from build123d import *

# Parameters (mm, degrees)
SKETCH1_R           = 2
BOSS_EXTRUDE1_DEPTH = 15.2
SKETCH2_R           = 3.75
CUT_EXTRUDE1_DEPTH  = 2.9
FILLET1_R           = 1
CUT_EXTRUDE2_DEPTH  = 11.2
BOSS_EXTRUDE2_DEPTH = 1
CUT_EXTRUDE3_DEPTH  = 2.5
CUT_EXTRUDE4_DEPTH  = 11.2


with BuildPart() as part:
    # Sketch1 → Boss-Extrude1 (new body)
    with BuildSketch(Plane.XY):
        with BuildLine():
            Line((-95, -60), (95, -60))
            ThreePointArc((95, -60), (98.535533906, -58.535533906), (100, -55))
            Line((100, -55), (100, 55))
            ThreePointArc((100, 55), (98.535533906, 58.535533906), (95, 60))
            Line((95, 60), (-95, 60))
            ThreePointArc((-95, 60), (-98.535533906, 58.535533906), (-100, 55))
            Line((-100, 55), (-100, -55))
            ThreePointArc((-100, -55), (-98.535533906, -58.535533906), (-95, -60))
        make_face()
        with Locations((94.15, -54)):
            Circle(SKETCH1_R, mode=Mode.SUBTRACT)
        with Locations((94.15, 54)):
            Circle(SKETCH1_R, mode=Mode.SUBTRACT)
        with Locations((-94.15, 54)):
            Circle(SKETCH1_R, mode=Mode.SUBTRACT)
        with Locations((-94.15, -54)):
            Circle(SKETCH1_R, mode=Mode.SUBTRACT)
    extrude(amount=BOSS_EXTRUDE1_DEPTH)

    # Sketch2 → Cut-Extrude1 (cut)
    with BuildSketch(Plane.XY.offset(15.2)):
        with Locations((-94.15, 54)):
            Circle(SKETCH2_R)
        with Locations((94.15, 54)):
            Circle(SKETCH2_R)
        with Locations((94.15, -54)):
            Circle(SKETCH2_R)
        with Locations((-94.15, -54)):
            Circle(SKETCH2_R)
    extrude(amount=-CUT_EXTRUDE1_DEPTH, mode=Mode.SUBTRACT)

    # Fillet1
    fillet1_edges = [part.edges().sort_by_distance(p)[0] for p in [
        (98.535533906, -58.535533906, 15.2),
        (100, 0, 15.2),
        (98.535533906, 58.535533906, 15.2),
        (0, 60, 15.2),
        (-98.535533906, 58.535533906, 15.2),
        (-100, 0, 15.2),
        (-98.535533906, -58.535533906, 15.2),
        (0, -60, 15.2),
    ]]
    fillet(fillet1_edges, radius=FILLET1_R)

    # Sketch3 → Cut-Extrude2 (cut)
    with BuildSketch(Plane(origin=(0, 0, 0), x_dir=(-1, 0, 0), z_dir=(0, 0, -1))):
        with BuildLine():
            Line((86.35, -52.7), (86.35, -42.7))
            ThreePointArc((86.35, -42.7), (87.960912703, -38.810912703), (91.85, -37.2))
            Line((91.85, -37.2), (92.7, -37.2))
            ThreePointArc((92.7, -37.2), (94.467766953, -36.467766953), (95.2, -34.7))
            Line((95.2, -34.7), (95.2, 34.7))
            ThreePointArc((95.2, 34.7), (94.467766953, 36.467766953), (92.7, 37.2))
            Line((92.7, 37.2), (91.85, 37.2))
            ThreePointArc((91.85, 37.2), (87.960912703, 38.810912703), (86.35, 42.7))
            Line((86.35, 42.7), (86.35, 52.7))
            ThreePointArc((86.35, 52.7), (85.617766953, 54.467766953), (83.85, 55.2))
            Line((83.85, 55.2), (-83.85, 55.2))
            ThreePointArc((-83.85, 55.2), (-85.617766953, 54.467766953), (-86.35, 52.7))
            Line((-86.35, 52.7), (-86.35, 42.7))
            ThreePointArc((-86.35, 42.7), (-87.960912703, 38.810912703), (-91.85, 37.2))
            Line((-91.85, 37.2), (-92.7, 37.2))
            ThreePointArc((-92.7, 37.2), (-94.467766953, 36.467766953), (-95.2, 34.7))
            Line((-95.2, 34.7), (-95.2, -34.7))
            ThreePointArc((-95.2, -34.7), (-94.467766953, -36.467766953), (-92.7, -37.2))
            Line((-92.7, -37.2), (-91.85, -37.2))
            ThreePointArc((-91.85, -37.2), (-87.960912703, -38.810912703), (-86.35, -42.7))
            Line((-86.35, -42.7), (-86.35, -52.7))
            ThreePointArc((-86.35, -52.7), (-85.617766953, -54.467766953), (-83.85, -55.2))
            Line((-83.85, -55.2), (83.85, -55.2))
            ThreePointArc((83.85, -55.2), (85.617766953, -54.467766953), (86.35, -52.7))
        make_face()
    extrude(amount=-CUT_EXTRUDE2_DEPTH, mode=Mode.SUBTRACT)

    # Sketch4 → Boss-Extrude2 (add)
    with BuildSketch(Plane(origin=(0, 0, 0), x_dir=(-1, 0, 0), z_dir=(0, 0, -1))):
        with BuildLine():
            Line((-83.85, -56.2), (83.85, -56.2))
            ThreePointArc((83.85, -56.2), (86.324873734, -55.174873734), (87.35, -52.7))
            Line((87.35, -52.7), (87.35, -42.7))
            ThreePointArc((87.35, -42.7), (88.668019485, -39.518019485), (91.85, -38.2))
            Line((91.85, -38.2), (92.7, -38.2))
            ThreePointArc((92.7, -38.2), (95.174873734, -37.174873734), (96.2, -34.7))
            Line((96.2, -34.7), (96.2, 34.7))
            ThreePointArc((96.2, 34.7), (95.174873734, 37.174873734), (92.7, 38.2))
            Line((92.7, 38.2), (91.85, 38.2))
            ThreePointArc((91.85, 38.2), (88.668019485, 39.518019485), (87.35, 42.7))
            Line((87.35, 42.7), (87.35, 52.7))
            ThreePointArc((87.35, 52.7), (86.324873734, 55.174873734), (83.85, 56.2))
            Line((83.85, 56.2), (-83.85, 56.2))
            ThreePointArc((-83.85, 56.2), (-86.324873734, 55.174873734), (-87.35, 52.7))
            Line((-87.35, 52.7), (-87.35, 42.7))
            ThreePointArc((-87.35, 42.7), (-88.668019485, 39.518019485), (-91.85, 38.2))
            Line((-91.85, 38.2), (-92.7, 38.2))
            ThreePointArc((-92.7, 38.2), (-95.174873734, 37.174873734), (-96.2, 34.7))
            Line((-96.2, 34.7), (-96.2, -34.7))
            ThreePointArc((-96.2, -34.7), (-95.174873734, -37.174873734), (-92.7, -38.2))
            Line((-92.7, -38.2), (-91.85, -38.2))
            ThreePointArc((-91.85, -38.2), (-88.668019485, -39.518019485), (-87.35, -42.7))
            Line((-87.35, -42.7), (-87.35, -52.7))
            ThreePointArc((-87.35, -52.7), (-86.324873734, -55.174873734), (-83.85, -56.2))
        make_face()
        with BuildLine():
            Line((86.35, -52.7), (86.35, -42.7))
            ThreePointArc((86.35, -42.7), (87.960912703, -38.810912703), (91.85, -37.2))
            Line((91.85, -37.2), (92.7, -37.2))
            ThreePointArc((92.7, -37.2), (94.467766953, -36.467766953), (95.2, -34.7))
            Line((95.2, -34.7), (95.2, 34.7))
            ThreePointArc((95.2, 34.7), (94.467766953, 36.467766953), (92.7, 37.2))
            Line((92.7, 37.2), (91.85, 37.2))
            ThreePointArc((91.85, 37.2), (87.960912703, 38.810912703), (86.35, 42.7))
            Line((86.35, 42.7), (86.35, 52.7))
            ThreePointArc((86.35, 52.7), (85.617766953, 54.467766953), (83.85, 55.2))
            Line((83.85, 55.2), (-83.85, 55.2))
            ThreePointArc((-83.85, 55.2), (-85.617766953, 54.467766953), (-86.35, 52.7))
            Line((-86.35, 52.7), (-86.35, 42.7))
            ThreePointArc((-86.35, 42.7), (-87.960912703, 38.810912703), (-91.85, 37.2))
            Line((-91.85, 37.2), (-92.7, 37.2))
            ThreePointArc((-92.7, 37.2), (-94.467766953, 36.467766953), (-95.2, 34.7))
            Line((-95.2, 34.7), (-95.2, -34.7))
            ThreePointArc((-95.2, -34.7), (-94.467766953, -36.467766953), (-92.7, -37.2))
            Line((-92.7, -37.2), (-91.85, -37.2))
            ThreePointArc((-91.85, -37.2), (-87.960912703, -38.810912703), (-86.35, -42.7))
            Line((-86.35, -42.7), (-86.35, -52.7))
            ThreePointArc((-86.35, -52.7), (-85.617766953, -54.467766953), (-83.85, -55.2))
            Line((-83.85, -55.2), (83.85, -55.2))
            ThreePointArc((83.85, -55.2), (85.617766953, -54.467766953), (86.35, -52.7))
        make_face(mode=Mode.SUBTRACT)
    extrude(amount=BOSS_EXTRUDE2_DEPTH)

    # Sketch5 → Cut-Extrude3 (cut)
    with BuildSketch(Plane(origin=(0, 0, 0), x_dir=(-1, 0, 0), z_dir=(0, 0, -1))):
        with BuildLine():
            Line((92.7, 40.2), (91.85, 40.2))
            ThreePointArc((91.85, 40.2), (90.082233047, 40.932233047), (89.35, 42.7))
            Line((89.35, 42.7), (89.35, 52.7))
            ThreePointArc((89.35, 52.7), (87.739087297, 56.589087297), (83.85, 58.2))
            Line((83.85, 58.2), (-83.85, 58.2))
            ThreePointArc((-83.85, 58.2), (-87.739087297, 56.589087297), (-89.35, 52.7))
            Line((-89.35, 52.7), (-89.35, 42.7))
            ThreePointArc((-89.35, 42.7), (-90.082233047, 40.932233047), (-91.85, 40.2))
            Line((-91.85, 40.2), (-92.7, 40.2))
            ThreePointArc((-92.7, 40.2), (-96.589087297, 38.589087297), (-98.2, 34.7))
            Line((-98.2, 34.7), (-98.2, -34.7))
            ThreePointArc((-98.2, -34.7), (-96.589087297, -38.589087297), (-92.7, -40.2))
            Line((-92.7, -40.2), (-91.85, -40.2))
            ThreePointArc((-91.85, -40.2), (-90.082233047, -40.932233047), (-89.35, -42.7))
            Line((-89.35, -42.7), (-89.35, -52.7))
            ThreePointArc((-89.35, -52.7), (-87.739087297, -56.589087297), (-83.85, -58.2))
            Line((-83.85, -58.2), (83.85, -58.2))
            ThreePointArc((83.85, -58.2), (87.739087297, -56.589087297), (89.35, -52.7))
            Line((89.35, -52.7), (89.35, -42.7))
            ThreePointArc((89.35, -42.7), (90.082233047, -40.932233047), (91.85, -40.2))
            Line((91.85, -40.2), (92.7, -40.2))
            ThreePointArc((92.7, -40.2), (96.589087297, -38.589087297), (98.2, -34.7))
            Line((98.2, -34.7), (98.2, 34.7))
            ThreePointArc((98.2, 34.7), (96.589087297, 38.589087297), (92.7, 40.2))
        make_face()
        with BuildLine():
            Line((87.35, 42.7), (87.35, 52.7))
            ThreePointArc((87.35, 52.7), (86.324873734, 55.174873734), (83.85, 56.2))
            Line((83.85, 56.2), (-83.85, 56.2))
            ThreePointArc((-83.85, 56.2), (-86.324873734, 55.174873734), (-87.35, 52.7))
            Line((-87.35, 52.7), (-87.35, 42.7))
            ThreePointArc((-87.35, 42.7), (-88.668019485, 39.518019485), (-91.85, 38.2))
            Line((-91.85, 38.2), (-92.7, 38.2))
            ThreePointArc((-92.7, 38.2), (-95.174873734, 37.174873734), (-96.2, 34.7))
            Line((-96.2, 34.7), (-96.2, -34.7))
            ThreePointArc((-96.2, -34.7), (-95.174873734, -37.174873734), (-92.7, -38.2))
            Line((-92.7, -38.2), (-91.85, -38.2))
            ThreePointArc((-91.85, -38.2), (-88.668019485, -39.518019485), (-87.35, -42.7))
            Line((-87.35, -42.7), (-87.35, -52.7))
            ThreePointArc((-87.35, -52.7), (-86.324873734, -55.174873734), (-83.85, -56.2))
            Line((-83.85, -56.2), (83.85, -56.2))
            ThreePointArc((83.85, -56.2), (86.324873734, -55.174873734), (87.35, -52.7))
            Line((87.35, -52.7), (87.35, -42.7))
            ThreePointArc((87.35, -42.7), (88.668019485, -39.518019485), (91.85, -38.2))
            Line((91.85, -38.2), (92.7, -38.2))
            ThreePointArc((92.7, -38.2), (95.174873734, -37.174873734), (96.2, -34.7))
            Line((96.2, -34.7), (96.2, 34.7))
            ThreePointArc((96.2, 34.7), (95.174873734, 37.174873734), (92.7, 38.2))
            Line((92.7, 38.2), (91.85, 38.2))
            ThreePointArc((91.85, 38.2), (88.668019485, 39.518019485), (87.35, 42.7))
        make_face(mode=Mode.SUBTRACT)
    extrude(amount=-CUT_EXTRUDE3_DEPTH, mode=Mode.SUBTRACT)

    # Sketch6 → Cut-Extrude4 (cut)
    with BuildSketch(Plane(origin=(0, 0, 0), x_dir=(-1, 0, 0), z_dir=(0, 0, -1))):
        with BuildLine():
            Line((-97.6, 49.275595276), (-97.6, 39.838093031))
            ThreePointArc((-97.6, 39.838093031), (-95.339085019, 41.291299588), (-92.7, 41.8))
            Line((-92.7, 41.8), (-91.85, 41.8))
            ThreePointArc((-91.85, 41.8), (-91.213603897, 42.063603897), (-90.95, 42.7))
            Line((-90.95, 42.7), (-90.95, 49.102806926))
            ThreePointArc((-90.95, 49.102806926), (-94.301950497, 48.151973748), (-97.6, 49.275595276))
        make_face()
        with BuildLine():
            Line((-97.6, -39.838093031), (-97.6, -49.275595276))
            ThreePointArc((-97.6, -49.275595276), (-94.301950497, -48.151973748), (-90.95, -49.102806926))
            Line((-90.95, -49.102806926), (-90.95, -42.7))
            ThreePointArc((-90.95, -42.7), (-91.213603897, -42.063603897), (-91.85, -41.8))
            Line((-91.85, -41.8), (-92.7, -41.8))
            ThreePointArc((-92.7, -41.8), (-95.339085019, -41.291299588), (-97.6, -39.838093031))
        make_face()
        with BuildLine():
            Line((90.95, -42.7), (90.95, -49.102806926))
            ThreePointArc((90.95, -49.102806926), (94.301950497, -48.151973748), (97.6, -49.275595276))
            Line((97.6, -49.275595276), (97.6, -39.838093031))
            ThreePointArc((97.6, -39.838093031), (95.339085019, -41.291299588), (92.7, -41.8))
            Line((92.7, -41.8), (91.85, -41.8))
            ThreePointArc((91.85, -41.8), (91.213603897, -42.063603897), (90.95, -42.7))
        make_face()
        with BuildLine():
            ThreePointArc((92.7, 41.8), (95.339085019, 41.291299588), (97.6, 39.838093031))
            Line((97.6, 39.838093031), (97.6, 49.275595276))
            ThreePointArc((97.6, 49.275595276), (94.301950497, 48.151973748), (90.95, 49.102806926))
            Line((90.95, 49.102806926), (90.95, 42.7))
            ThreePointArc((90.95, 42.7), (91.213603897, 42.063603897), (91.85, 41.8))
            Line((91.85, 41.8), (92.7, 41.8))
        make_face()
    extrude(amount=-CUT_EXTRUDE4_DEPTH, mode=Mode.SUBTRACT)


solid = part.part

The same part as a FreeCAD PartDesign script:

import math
import FreeCAD as App
import Part
import Sketcher

V = App.Vector


def edges_at(feature, points):
    """Names of the edges that pass closest to the given points."""
    edges = feature.Shape.Edges
    near = lambda p: min(range(len(edges)), key=lambda i: edges[i].distToShape(Part.Vertex(*p))[0])
    return sorted({f"Edge{near(p) + 1}" for p in points})

doc = App.newDocument("Part")
body = doc.addObject("PartDesign::Body", "Body")

# Sketch on XY plane
sketch1 = body.newObject("Sketcher::SketchObject", "Sketch")
sketch1.AttachmentSupport = (doc.getObject("XY_Plane"), [""])
sketch1.MapMode = "FlatFace"
sketch1.addGeometry([
    Part.LineSegment(V(-95, -60, 0), V(95, -60, 0)),  # 0
    Part.ArcOfCircle(Part.Circle(V(95, -55, 0), V(0, 0, 1), 5), math.radians(-90), math.radians(0)),  # 1
    Part.LineSegment(V(100, -55, 0), V(100, 55, 0)),  # 2
    Part.ArcOfCircle(Part.Circle(V(95, 55, 0), V(0, 0, 1), 5), math.radians(0), math.radians(90)),  # 3
    Part.LineSegment(V(95, 60, 0), V(-95, 60, 0)),  # 4
    Part.ArcOfCircle(Part.Circle(V(-95, 55, 0), V(0, 0, 1), 5), math.radians(90), math.radians(180)),  # 5
    Part.LineSegment(V(-100, 55, 0), V(-100, -55, 0)),  # 6
    Part.ArcOfCircle(Part.Circle(V(-95, -55, 0), V(0, 0, 1), 5), math.radians(180), math.radians(270)),  # 7
    Part.Circle(V(-94.2, -54, 0), V(0, 0, 1), 2),  # 8
    Part.Circle(V(94.2, -54, 0), V(0, 0, 1), 2),  # 9
    Part.Circle(V(-94.2, 54, 0), V(0, 0, 1), 2),  # 10
    Part.Circle(V(94.2, 54, 0), V(0, 0, 1), 2),  # 11
], False)
sketch1.addConstraint([
    Sketcher.Constraint("Tangent", 0, 2, 1, 1),
    Sketcher.Constraint("Tangent", 1, 2, 2, 1),
    Sketcher.Constraint("Tangent", 2, 2, 3, 1),
    Sketcher.Constraint("Tangent", 3, 2, 4, 1),
    Sketcher.Constraint("Tangent", 4, 2, 5, 1),
    Sketcher.Constraint("Tangent", 5, 2, 6, 1),
    Sketcher.Constraint("Tangent", 6, 2, 7, 1),
    Sketcher.Constraint("Tangent", 7, 2, 0, 1),
    Sketcher.Constraint("Horizontal", 0),
    Sketcher.Constraint("Vertical", 2),
    Sketcher.Constraint("Horizontal", 4),
    Sketcher.Constraint("Vertical", 6),
    Sketcher.Constraint("Equal", 1, 3),
    Sketcher.Constraint("Equal", 3, 5),
    Sketcher.Constraint("Equal", 5, 7),
    Sketcher.Constraint("Equal", 8, 9),
    Sketcher.Constraint("Equal", 9, 10),
    Sketcher.Constraint("Equal", 10, 11),
    Sketcher.Constraint("Symmetric", 1, 3, 5, 3, -1, 1),
    Sketcher.Constraint("Symmetric", 9, 3, 10, 3, -1, 1),
    Sketcher.Constraint("Symmetric", 8, 3, 11, 3, -1, 1),
    Sketcher.Constraint("Symmetric", 8, 3, 9, 3, -2),
    Sketcher.Constraint("Diameter", 8, 4.0),
    Sketcher.Constraint("Radius", 1, 5.0),
    Sketcher.Constraint("DistanceX", 0, 1, 0, 2, 190.0),
    Sketcher.Constraint("DistanceY", 2, 1, 2, 2, 110.0),
    Sketcher.Constraint("DistanceY", 8, 3, -1, 1, 54.0),
    Sketcher.Constraint("DistanceX", 8, 3, 9, 3, 188.3),
])
pad1 = body.newObject("PartDesign::Pad", "Pad")
pad1.Profile = sketch1
pad1.Length = 15.2

# Sketch on XY plane
sketch2 = body.newObject("Sketcher::SketchObject", "Sketch001")
sketch2.AttachmentSupport = (doc.getObject("XY_Plane"), [""])
sketch2.MapMode = "FlatFace"
sketch2.AttachmentOffset = App.Placement(V(0, 0, 15.2), App.Rotation())
sketch2.addGeometry([
    Part.Circle(V(-94.2, 54, 0), V(0, 0, 1), 3.8),
    Part.Circle(V(94.2, 54, 0), V(0, 0, 1), 3.8),
    Part.Circle(V(94.2, -54, 0), V(0, 0, 1), 3.8),
    Part.Circle(V(-94.2, -54, 0), V(0, 0, 1), 3.8),
], False)
sketch2.addConstraint([
    Sketcher.Constraint("Equal", 0, 1),
    Sketcher.Constraint("Equal", 1, 2),
    Sketcher.Constraint("Equal", 2, 3),
    Sketcher.Constraint("Symmetric", 0, 3, 2, 3, -1, 1),
    Sketcher.Constraint("Symmetric", 1, 3, 3, 3, -1, 1),
    Sketcher.Constraint("Symmetric", 0, 3, 1, 3, -2),
    Sketcher.Constraint("Diameter", 0, 7.5),
    Sketcher.Constraint("DistanceY", -1, 1, 0, 3, 54.0),
    Sketcher.Constraint("DistanceX", 0, 3, 1, 3, 188.3),
])
pocket1 = body.newObject("PartDesign::Pocket", "Pocket")
pocket1.Profile = sketch2
pocket1.Length = 2.9
doc.recompute()

fillet = body.newObject("PartDesign::Fillet", "Fillet")
fillet.Base = (pocket1, edges_at(pocket1, [
    (98.536, -58.536, 15.2),
    (100, 0, 15.2),
    (98.536, 58.536, 15.2),
    (0, 60, 15.2),
    (-98.536, 58.536, 15.2),
    (-100, 0, 15.2),
    (-98.536, -58.536, 15.2),
    (0, -60, 15.2),
]))
fillet.Radius = 1

# Sketch on XY plane
sketch3 = body.newObject("Sketcher::SketchObject", "Sketch002")
sketch3.AttachmentSupport = (doc.getObject("XY_Plane"), [""])
sketch3.MapMode = "FlatFace"
sketch3.addGeometry([
    Part.LineSegment(V(-86.3, -52.7, 0), V(-86.3, -42.7, 0)),  # 0
    Part.ArcOfCircle(Part.Circle(V(-91.8, -42.7, 0), V(0, 0, 1), 5.5), math.radians(0), math.radians(90)),  # 1
    Part.LineSegment(V(-91.8, -37.2, 0), V(-92.7, -37.2, 0)),  # 2
    Part.ArcOfCircle(Part.Circle(V(-92.7, -34.7, 0), V(0, 0, 1), 2.5), math.radians(180), math.radians(270)),  # 3
    Part.LineSegment(V(-95.2, -34.7, 0), V(-95.2, 34.7, 0)),  # 4
    Part.ArcOfCircle(Part.Circle(V(-92.7, 34.7, 0), V(0, 0, 1), 2.5), math.radians(90), math.radians(180)),  # 5
    Part.LineSegment(V(-92.7, 37.2, 0), V(-91.8, 37.2, 0)),  # 6
    Part.ArcOfCircle(Part.Circle(V(-91.8, 42.7, 0), V(0, 0, 1), 5.5), math.radians(-90), math.radians(0)),  # 7
    Part.LineSegment(V(-86.3, 42.7, 0), V(-86.3, 52.7, 0)),  # 8
    Part.ArcOfCircle(Part.Circle(V(-83.8, 52.7, 0), V(0, 0, 1), 2.5), math.radians(90), math.radians(180)),  # 9
    Part.LineSegment(V(-83.8, 55.2, 0), V(83.8, 55.2, 0)),  # 10
    Part.ArcOfCircle(Part.Circle(V(83.8, 52.7, 0), V(0, 0, 1), 2.5), math.radians(0), math.radians(90)),  # 11
    Part.LineSegment(V(86.3, 52.7, 0), V(86.3, 42.7, 0)),  # 12
    Part.ArcOfCircle(Part.Circle(V(91.8, 42.7, 0), V(0, 0, 1), 5.5), math.radians(180), math.radians(270)),  # 13
    Part.LineSegment(V(91.8, 37.2, 0), V(92.7, 37.2, 0)),  # 14
    Part.ArcOfCircle(Part.Circle(V(92.7, 34.7, 0), V(0, 0, 1), 2.5), math.radians(0), math.radians(90)),  # 15
    Part.LineSegment(V(95.2, 34.7, 0), V(95.2, -34.7, 0)),  # 16
    Part.ArcOfCircle(Part.Circle(V(92.7, -34.7, 0), V(0, 0, 1), 2.5), math.radians(-90), math.radians(0)),  # 17
    Part.LineSegment(V(92.7, -37.2, 0), V(91.8, -37.2, 0)),  # 18
    Part.ArcOfCircle(Part.Circle(V(91.8, -42.7, 0), V(0, 0, 1), 5.5), math.radians(90), math.radians(180)),  # 19
    Part.LineSegment(V(86.3, -42.7, 0), V(86.3, -52.7, 0)),  # 20
    Part.ArcOfCircle(Part.Circle(V(83.8, -52.7, 0), V(0, 0, 1), 2.5), math.radians(-90), math.radians(0)),  # 21
    Part.LineSegment(V(83.8, -55.2, 0), V(-83.8, -55.2, 0)),  # 22
    Part.ArcOfCircle(Part.Circle(V(-83.8, -52.7, 0), V(0, 0, 1), 2.5), math.radians(180), math.radians(270)),  # 23
], False)
sketch3.addConstraint([
    Sketcher.Constraint("Tangent", 0, 2, 1, 1),
    Sketcher.Constraint("Tangent", 1, 2, 2, 1),
    Sketcher.Constraint("Tangent", 2, 2, 3, 2),
    Sketcher.Constraint("Tangent", 3, 1, 4, 1),
    Sketcher.Constraint("Tangent", 4, 2, 5, 2),
    Sketcher.Constraint("Tangent", 5, 1, 6, 1),
    Sketcher.Constraint("Tangent", 6, 2, 7, 1),
    Sketcher.Constraint("Tangent", 7, 2, 8, 1),
    Sketcher.Constraint("Tangent", 8, 2, 9, 2),
    Sketcher.Constraint("Tangent", 9, 1, 10, 1),
    Sketcher.Constraint("Tangent", 10, 2, 11, 2),
    Sketcher.Constraint("Tangent", 11, 1, 12, 1),
    Sketcher.Constraint("Tangent", 12, 2, 13, 1),
    Sketcher.Constraint("Tangent", 13, 2, 14, 1),
    Sketcher.Constraint("Tangent", 14, 2, 15, 2),
    Sketcher.Constraint("Tangent", 15, 1, 16, 1),
    Sketcher.Constraint("Tangent", 16, 2, 17, 2),
    Sketcher.Constraint("Tangent", 17, 1, 18, 1),
    Sketcher.Constraint("Tangent", 18, 2, 19, 1),
    Sketcher.Constraint("Tangent", 19, 2, 20, 1),
    Sketcher.Constraint("Tangent", 20, 2, 21, 2),
    Sketcher.Constraint("Tangent", 21, 1, 22, 1),
    Sketcher.Constraint("Tangent", 22, 2, 23, 2),
    Sketcher.Constraint("Tangent", 23, 1, 0, 1),
    Sketcher.Constraint("Vertical", 0),
    Sketcher.Constraint("Horizontal", 2),
    Sketcher.Constraint("Vertical", 4),
    Sketcher.Constraint("Horizontal", 6),
    Sketcher.Constraint("Vertical", 8),
    Sketcher.Constraint("Horizontal", 10),
    Sketcher.Constraint("Vertical", 12),
    Sketcher.Constraint("Horizontal", 14),
    Sketcher.Constraint("Vertical", 16),
    Sketcher.Constraint("Horizontal", 18),
    Sketcher.Constraint("Vertical", 20),
    Sketcher.Constraint("Horizontal", 22),
    Sketcher.Constraint("Equal", 3, 5),
    Sketcher.Constraint("Equal", 1, 7),
    Sketcher.Constraint("Equal", 5, 9),
    Sketcher.Constraint("Equal", 9, 11),
    Sketcher.Constraint("Equal", 7, 13),
    Sketcher.Constraint("Equal", 11, 15),
    Sketcher.Constraint("Equal", 15, 17),
    Sketcher.Constraint("Equal", 13, 19),
    Sketcher.Constraint("Equal", 17, 21),
    Sketcher.Constraint("Equal", 21, 23),
    Sketcher.Constraint("Symmetric", 1, 3, 13, 3, -1, 1),
    Sketcher.Constraint("Symmetric", 5, 3, 17, 3, -1, 1),
    Sketcher.Constraint("Symmetric", 9, 3, 21, 3, -1, 1),
    Sketcher.Constraint("Symmetric", 7, 3, 13, 3, -2),
    Sketcher.Constraint("Radius", 1, 5.5),
    Sketcher.Constraint("Radius", 3, 2.5),
    Sketcher.Constraint("DistanceY", 0, 1, 0, 2, 10.0),
    Sketcher.Constraint("DistanceX", 10, 1, 10, 2, 167.7),
    Sketcher.Constraint("DistanceY", 4, 1, 4, 2, 69.4),
    Sketcher.Constraint("DistanceX", 2, 2, 2, 1, 0.85),
])
pocket2 = body.newObject("PartDesign::Pocket", "Pocket001")
pocket2.Profile = sketch3
pocket2.Length = 11.2
pocket2.Reversed = True

# Sketch on XY plane
sketch4 = body.newObject("Sketcher::SketchObject", "Sketch003")
sketch4.AttachmentSupport = (doc.getObject("XY_Plane"), [""])
sketch4.MapMode = "FlatFace"
sketch4.addGeometry([
    Part.LineSegment(V(83.8, -56.2, 0), V(-83.8, -56.2, 0)),  # 0
    Part.ArcOfCircle(Part.Circle(V(-83.8, -52.7, 0), V(0, 0, 1), 3.5), math.radians(-180), math.radians(-90)),  # 1
    Part.LineSegment(V(-87.3, -52.7, 0), V(-87.3, -42.7, 0)),  # 2
    Part.ArcOfCircle(Part.Circle(V(-91.9, -42.7, 0), V(0, 0, 1), 4.5), math.radians(0), math.radians(90)),  # 3
    Part.LineSegment(V(-91.8, -38.2, 0), V(-92.7, -38.2, 0)),  # 4
    Part.ArcOfCircle(Part.Circle(V(-92.7, -34.7, 0), V(0, 0, 1), 3.5), math.radians(-180), math.radians(-90)),  # 5
    Part.LineSegment(V(-96.2, -34.7, 0), V(-96.2, 34.7, 0)),  # 6
    Part.ArcOfCircle(Part.Circle(V(-92.7, 34.7, 0), V(0, 0, 1), 3.5), math.radians(90), math.radians(180)),  # 7
    Part.LineSegment(V(-92.7, 38.2, 0), V(-91.8, 38.2, 0)),  # 8
    Part.ArcOfCircle(Part.Circle(V(-91.9, 42.7, 0), V(0, 0, 1), 4.5), math.radians(-90), math.radians(0)),  # 9
    Part.LineSegment(V(-87.3, 42.7, 0), V(-87.3, 52.7, 0)),  # 10
    Part.ArcOfCircle(Part.Circle(V(-83.8, 52.7, 0), V(0, 0, 1), 3.5), math.radians(90), math.radians(180)),  # 11
    Part.LineSegment(V(-83.8, 56.2, 0), V(83.8, 56.2, 0)),  # 12
    Part.ArcOfCircle(Part.Circle(V(83.8, 52.7, 0), V(0, 0, 1), 3.5), math.radians(0), math.radians(90)),  # 13
    Part.LineSegment(V(87.3, 52.7, 0), V(87.3, 42.7, 0)),  # 14
    Part.ArcOfCircle(Part.Circle(V(91.9, 42.7, 0), V(0, 0, 1), 4.5), math.radians(-180), math.radians(-90)),  # 15
    Part.LineSegment(V(91.8, 38.2, 0), V(92.7, 38.2, 0)),  # 16
    Part.ArcOfCircle(Part.Circle(V(92.7, 34.7, 0), V(0, 0, 1), 3.5), math.radians(0), math.radians(90)),  # 17
    Part.LineSegment(V(96.2, 34.7, 0), V(96.2, -34.7, 0)),  # 18
    Part.ArcOfCircle(Part.Circle(V(92.7, -34.7, 0), V(0, 0, 1), 3.5), math.radians(-90), math.radians(0)),  # 19
    Part.LineSegment(V(92.7, -38.2, 0), V(91.8, -38.2, 0)),  # 20
    Part.ArcOfCircle(Part.Circle(V(91.9, -42.7, 0), V(0, 0, 1), 4.5), math.radians(90), math.radians(180)),  # 21
    Part.LineSegment(V(87.3, -42.7, 0), V(87.3, -52.7, 0)),  # 22
    Part.ArcOfCircle(Part.Circle(V(83.8, -52.7, 0), V(0, 0, 1), 3.5), math.radians(-90), math.radians(0)),  # 23
    Part.LineSegment(V(-86.3, -42.7, 0), V(-86.3, -52.7, 0)),  # 24
    Part.ArcOfCircle(Part.Circle(V(-83.8, -52.7, 0), V(0, 0, 1), 2.5), math.radians(180), math.radians(270)),  # 25
    Part.LineSegment(V(-83.8, -55.2, 0), V(83.8, -55.2, 0)),  # 26
    Part.ArcOfCircle(Part.Circle(V(83.8, -52.7, 0), V(0, 0, 1), 2.5), math.radians(-90), math.radians(0)),  # 27
    Part.LineSegment(V(86.3, -52.7, 0), V(86.3, -42.7, 0)),  # 28
    Part.ArcOfCircle(Part.Circle(V(91.8, -42.7, 0), V(0, 0, 1), 5.5), math.radians(90), math.radians(180)),  # 29
    Part.LineSegment(V(91.8, -37.2, 0), V(92.7, -37.2, 0)),  # 30
    Part.ArcOfCircle(Part.Circle(V(92.7, -34.7, 0), V(0, 0, 1), 2.5), math.radians(-90), math.radians(0)),  # 31
    Part.LineSegment(V(95.2, -34.7, 0), V(95.2, 34.7, 0)),  # 32
    Part.ArcOfCircle(Part.Circle(V(92.7, 34.7, 0), V(0, 0, 1), 2.5), math.radians(0), math.radians(90)),  # 33
    Part.LineSegment(V(92.7, 37.2, 0), V(91.8, 37.2, 0)),  # 34
    Part.ArcOfCircle(Part.Circle(V(91.8, 42.7, 0), V(0, 0, 1), 5.5), math.radians(180), math.radians(270)),  # 35
    Part.LineSegment(V(86.3, 42.7, 0), V(86.3, 52.7, 0)),  # 36
    Part.ArcOfCircle(Part.Circle(V(83.8, 52.7, 0), V(0, 0, 1), 2.5), math.radians(0), math.radians(90)),  # 37
    Part.LineSegment(V(83.8, 55.2, 0), V(-83.8, 55.2, 0)),  # 38
    Part.ArcOfCircle(Part.Circle(V(-83.8, 52.7, 0), V(0, 0, 1), 2.5), math.radians(90), math.radians(180)),  # 39
    Part.LineSegment(V(-86.3, 52.7, 0), V(-86.3, 42.7, 0)),  # 40
    Part.ArcOfCircle(Part.Circle(V(-91.8, 42.7, 0), V(0, 0, 1), 5.5), math.radians(-90), math.radians(0)),  # 41
    Part.LineSegment(V(-91.8, 37.2, 0), V(-92.7, 37.2, 0)),  # 42
    Part.ArcOfCircle(Part.Circle(V(-92.7, 34.7, 0), V(0, 0, 1), 2.5), math.radians(90), math.radians(180)),  # 43
    Part.LineSegment(V(-95.2, 34.7, 0), V(-95.2, -34.7, 0)),  # 44
    Part.ArcOfCircle(Part.Circle(V(-92.7, -34.7, 0), V(0, 0, 1), 2.5), math.radians(180), math.radians(270)),  # 45
    Part.LineSegment(V(-92.7, -37.2, 0), V(-91.8, -37.2, 0)),  # 46
    Part.ArcOfCircle(Part.Circle(V(-91.8, -42.7, 0), V(0, 0, 1), 5.5), math.radians(0), math.radians(90)),  # 47
], False)
sketch4.addConstraint([
    Sketcher.Constraint("Tangent", 0, 2, 1, 2),
    Sketcher.Constraint("Tangent", 1, 1, 2, 1),
    Sketcher.Constraint("Tangent", 2, 2, 3, 1),
    Sketcher.Constraint("Tangent", 3, 2, 4, 1),
    Sketcher.Constraint("Tangent", 4, 2, 5, 2),
    Sketcher.Constraint("Tangent", 5, 1, 6, 1),
    Sketcher.Constraint("Tangent", 6, 2, 7, 2),
    Sketcher.Constraint("Tangent", 7, 1, 8, 1),
    Sketcher.Constraint("Tangent", 8, 2, 9, 1),
    Sketcher.Constraint("Tangent", 9, 2, 10, 1),
    Sketcher.Constraint("Tangent", 10, 2, 11, 2),
    Sketcher.Constraint("Tangent", 11, 1, 12, 1),
    Sketcher.Constraint("Tangent", 12, 2, 13, 2),
    Sketcher.Constraint("Tangent", 13, 1, 14, 1),
    Sketcher.Constraint("Tangent", 14, 2, 15, 1),
    Sketcher.Constraint("Tangent", 15, 2, 16, 1),
    Sketcher.Constraint("Tangent", 16, 2, 17, 2),
    Sketcher.Constraint("Tangent", 17, 1, 18, 1),
    Sketcher.Constraint("Tangent", 18, 2, 19, 2),
    Sketcher.Constraint("Tangent", 19, 1, 20, 1),
    Sketcher.Constraint("Tangent", 20, 2, 21, 1),
    Sketcher.Constraint("Tangent", 21, 2, 22, 1),
    Sketcher.Constraint("Tangent", 22, 2, 23, 2),
    Sketcher.Constraint("Tangent", 23, 1, 0, 1),
    Sketcher.Constraint("Tangent", 24, 2, 25, 1),
    Sketcher.Constraint("Tangent", 25, 2, 26, 1),
    Sketcher.Constraint("Tangent", 26, 2, 27, 1),
    Sketcher.Constraint("Tangent", 27, 2, 28, 1),
    Sketcher.Constraint("Tangent", 28, 2, 29, 2),
    Sketcher.Constraint("Tangent", 29, 1, 30, 1),
    Sketcher.Constraint("Tangent", 30, 2, 31, 1),
    Sketcher.Constraint("Tangent", 31, 2, 32, 1),
    Sketcher.Constraint("Tangent", 32, 2, 33, 1),
    Sketcher.Constraint("Tangent", 33, 2, 34, 1),
    Sketcher.Constraint("Tangent", 34, 2, 35, 2),
    Sketcher.Constraint("Tangent", 35, 1, 36, 1),
    Sketcher.Constraint("Tangent", 36, 2, 37, 1),
    Sketcher.Constraint("Tangent", 37, 2, 38, 1),
    Sketcher.Constraint("Tangent", 38, 2, 39, 1),
    Sketcher.Constraint("Tangent", 39, 2, 40, 1),
    Sketcher.Constraint("Tangent", 40, 2, 41, 2),
    Sketcher.Constraint("Tangent", 41, 1, 42, 1),
    Sketcher.Constraint("Tangent", 42, 2, 43, 1),
    Sketcher.Constraint("Tangent", 43, 2, 44, 1),
    Sketcher.Constraint("Tangent", 44, 2, 45, 1),
    Sketcher.Constraint("Tangent", 45, 2, 46, 1),
    Sketcher.Constraint("Tangent", 46, 2, 47, 2),
    Sketcher.Constraint("Tangent", 47, 1, 24, 1),
    Sketcher.Constraint("Horizontal", 0),
    Sketcher.Constraint("Vertical", 2),
    Sketcher.Constraint("Horizontal", 4),
    Sketcher.Constraint("Vertical", 6),
    Sketcher.Constraint("Horizontal", 8),
    Sketcher.Constraint("Vertical", 10),
    Sketcher.Constraint("Horizontal", 12),
    Sketcher.Constraint("Vertical", 14),
    Sketcher.Constraint("Horizontal", 16),
    Sketcher.Constraint("Vertical", 18),
    Sketcher.Constraint("Horizontal", 20),
    Sketcher.Constraint("Vertical", 22),
    Sketcher.Constraint("Vertical", 24),
    Sketcher.Constraint("Horizontal", 26),
    Sketcher.Constraint("Vertical", 28),
    Sketcher.Constraint("Horizontal", 30),
    Sketcher.Constraint("Vertical", 32),
    Sketcher.Constraint("Horizontal", 34),
    Sketcher.Constraint("Vertical", 36),
    Sketcher.Constraint("Horizontal", 38),
    Sketcher.Constraint("Vertical", 40),
    Sketcher.Constraint("Horizontal", 42),
    Sketcher.Constraint("Vertical", 44),
    Sketcher.Constraint("Horizontal", 46),
    Sketcher.Constraint("Coincident", 25, 3, 1, 3),
    Sketcher.Constraint("Coincident", 27, 3, 23, 3),
    Sketcher.Constraint("Coincident", 29, 3, 21, 3),
    Sketcher.Constraint("Coincident", 31, 3, 19, 3),
    Sketcher.Constraint("Coincident", 33, 3, 17, 3),
    Sketcher.Constraint("Coincident", 35, 3, 15, 3),
    Sketcher.Constraint("Coincident", 37, 3, 13, 3),
    Sketcher.Constraint("Coincident", 39, 3, 11, 3),
    Sketcher.Constraint("Coincident", 41, 3, 9, 3),
    Sketcher.Constraint("Coincident", 43, 3, 7, 3),
    Sketcher.Constraint("Coincident", 45, 3, 5, 3),
    Sketcher.Constraint("Equal", 1, 5),
    Sketcher.Constraint("Equal", 5, 7),
    Sketcher.Constraint("Equal", 3, 9),
    Sketcher.Constraint("Equal", 7, 11),
    Sketcher.Constraint("Equal", 11, 13),
    Sketcher.Constraint("Equal", 9, 15),
    Sketcher.Constraint("Equal", 13, 17),
    Sketcher.Constraint("Equal", 17, 19),
    Sketcher.Constraint("Equal", 15, 21),
    Sketcher.Constraint("Equal", 19, 23),
    Sketcher.Constraint("Equal", 41, 47),
    Sketcher.Constraint("Symmetric", 1, 3, 13, 3, -1, 1),
    Sketcher.Constraint("Symmetric", 5, 3, 17, 3, -1, 1),
    Sketcher.Constraint("Symmetric", 9, 3, 21, 3, -1, 1),
    Sketcher.Constraint("Symmetric", 9, 3, 15, 3, -2),
    Sketcher.Constraint("Radius", 1, 3.5),
    Sketcher.Constraint("Radius", 3, 4.5),
    Sketcher.Constraint("Radius", 25, 2.5),
    Sketcher.Constraint("DistanceY", 2, 1, 2, 2, 10.0),
    Sketcher.Constraint("DistanceX", 0, 2, 0, 1, 167.7),
    Sketcher.Constraint("DistanceY", 6, 1, 6, 2, 69.4),
    Sketcher.Constraint("DistanceX", 4, 2, 4, 1, 0.85),
])
pad2 = body.newObject("PartDesign::Pad", "Pad001")
pad2.Profile = sketch4
pad2.Length = 1
pad2.Reversed = True

# Sketch on XY plane
sketch5 = body.newObject("Sketcher::SketchObject", "Sketch004")
sketch5.AttachmentSupport = (doc.getObject("XY_Plane"), [""])
sketch5.MapMode = "FlatFace"
sketch5.addGeometry([
    Part.LineSegment(V(-92.7, 40.2, 0), V(-91.8, 40.2, 0)),  # 0
    Part.ArcOfCircle(Part.Circle(V(-91.8, 42.7, 0), V(0, 0, 1), 2.5), math.radians(-90), math.radians(0)),  # 1
    Part.LineSegment(V(-89.3, 42.7, 0), V(-89.3, 52.7, 0)),  # 2
    Part.ArcOfCircle(Part.Circle(V(-83.9, 52.7, 0), V(0, 0, 1), 5.5), math.radians(90), math.radians(180)),  # 3
    Part.LineSegment(V(-83.8, 58.2, 0), V(83.8, 58.2, 0)),  # 4
    Part.ArcOfCircle(Part.Circle(V(83.9, 52.7, 0), V(0, 0, 1), 5.5), math.radians(0), math.radians(90)),  # 5
    Part.LineSegment(V(89.3, 52.7, 0), V(89.3, 42.7, 0)),  # 6
    Part.ArcOfCircle(Part.Circle(V(91.8, 42.7, 0), V(0, 0, 1), 2.5), math.radians(180), math.radians(270)),  # 7
    Part.LineSegment(V(91.8, 40.2, 0), V(92.7, 40.2, 0)),  # 8
    Part.ArcOfCircle(Part.Circle(V(92.7, 34.7, 0), V(0, 0, 1), 5.5), math.radians(0), math.radians(90)),  # 9
    Part.LineSegment(V(98.2, 34.7, 0), V(98.2, -34.7, 0)),  # 10
    Part.ArcOfCircle(Part.Circle(V(92.7, -34.7, 0), V(0, 0, 1), 5.5), math.radians(-90), math.radians(0)),  # 11
    Part.LineSegment(V(92.7, -40.2, 0), V(91.8, -40.2, 0)),  # 12
    Part.ArcOfCircle(Part.Circle(V(91.8, -42.7, 0), V(0, 0, 1), 2.5), math.radians(90), math.radians(180)),  # 13
    Part.LineSegment(V(89.3, -42.7, 0), V(89.3, -52.7, 0)),  # 14
    Part.ArcOfCircle(Part.Circle(V(83.9, -52.7, 0), V(0, 0, 1), 5.5), math.radians(-90), math.radians(0)),  # 15
    Part.LineSegment(V(83.8, -58.2, 0), V(-83.8, -58.2, 0)),  # 16
    Part.ArcOfCircle(Part.Circle(V(-83.9, -52.7, 0), V(0, 0, 1), 5.5), math.radians(180), math.radians(270)),  # 17
    Part.LineSegment(V(-89.3, -52.7, 0), V(-89.3, -42.7, 0)),  # 18
    Part.ArcOfCircle(Part.Circle(V(-91.8, -42.7, 0), V(0, 0, 1), 2.5), math.radians(0), math.radians(90)),  # 19
    Part.LineSegment(V(-91.8, -40.2, 0), V(-92.7, -40.2, 0)),  # 20
    Part.ArcOfCircle(Part.Circle(V(-92.7, -34.7, 0), V(0, 0, 1), 5.5), math.radians(180), math.radians(270)),  # 21
    Part.LineSegment(V(-98.2, -34.7, 0), V(-98.2, 34.7, 0)),  # 22
    Part.ArcOfCircle(Part.Circle(V(-92.7, 34.7, 0), V(0, 0, 1), 5.5), math.radians(90), math.radians(180)),  # 23
    Part.LineSegment(V(-87.3, 52.7, 0), V(-87.3, 42.7, 0)),  # 24
    Part.ArcOfCircle(Part.Circle(V(-91.9, 42.7, 0), V(0, 0, 1), 4.5), math.radians(-90), math.radians(0)),  # 25
    Part.LineSegment(V(-91.8, 38.2, 0), V(-92.7, 38.2, 0)),  # 26
    Part.ArcOfCircle(Part.Circle(V(-92.7, 34.7, 0), V(0, 0, 1), 3.5), math.radians(90), math.radians(180)),  # 27
    Part.LineSegment(V(-96.2, 34.7, 0), V(-96.2, -34.7, 0)),  # 28
    Part.ArcOfCircle(Part.Circle(V(-92.7, -34.7, 0), V(0, 0, 1), 3.5), math.radians(-180), math.radians(-90)),  # 29
    Part.LineSegment(V(-92.7, -38.2, 0), V(-91.8, -38.2, 0)),  # 30
    Part.ArcOfCircle(Part.Circle(V(-91.9, -42.7, 0), V(0, 0, 1), 4.5), math.radians(0), math.radians(90)),  # 31
    Part.LineSegment(V(-87.3, -42.7, 0), V(-87.3, -52.7, 0)),  # 32
    Part.ArcOfCircle(Part.Circle(V(-83.8, -52.7, 0), V(0, 0, 1), 3.5), math.radians(-180), math.radians(-90)),  # 33
    Part.LineSegment(V(-83.8, -56.2, 0), V(83.8, -56.2, 0)),  # 34
    Part.ArcOfCircle(Part.Circle(V(83.8, -52.7, 0), V(0, 0, 1), 3.5), math.radians(-90), math.radians(0)),  # 35
    Part.LineSegment(V(87.3, -52.7, 0), V(87.3, -42.7, 0)),  # 36
    Part.ArcOfCircle(Part.Circle(V(91.9, -42.7, 0), V(0, 0, 1), 4.5), math.radians(90), math.radians(180)),  # 37
    Part.LineSegment(V(91.8, -38.2, 0), V(92.7, -38.2, 0)),  # 38
    Part.ArcOfCircle(Part.Circle(V(92.7, -34.7, 0), V(0, 0, 1), 3.5), math.radians(-90), math.radians(0)),  # 39
    Part.LineSegment(V(96.2, -34.7, 0), V(96.2, 34.7, 0)),  # 40
    Part.ArcOfCircle(Part.Circle(V(92.7, 34.7, 0), V(0, 0, 1), 3.5), math.radians(0), math.radians(90)),  # 41
    Part.LineSegment(V(92.7, 38.2, 0), V(91.8, 38.2, 0)),  # 42
    Part.ArcOfCircle(Part.Circle(V(91.9, 42.7, 0), V(0, 0, 1), 4.5), math.radians(-180), math.radians(-90)),  # 43
    Part.LineSegment(V(87.3, 42.7, 0), V(87.3, 52.7, 0)),  # 44
    Part.ArcOfCircle(Part.Circle(V(83.8, 52.7, 0), V(0, 0, 1), 3.5), math.radians(0), math.radians(90)),  # 45
    Part.LineSegment(V(83.8, 56.2, 0), V(-83.8, 56.2, 0)),  # 46
    Part.ArcOfCircle(Part.Circle(V(-83.8, 52.7, 0), V(0, 0, 1), 3.5), math.radians(90), math.radians(180)),  # 47
], False)
sketch5.addConstraint([
    Sketcher.Constraint("Tangent", 0, 2, 1, 1),
    Sketcher.Constraint("Tangent", 1, 2, 2, 1),
    Sketcher.Constraint("Tangent", 2, 2, 3, 2),
    Sketcher.Constraint("Tangent", 3, 1, 4, 1),
    Sketcher.Constraint("Tangent", 4, 2, 5, 2),
    Sketcher.Constraint("Tangent", 5, 1, 6, 1),
    Sketcher.Constraint("Tangent", 6, 2, 7, 1),
    Sketcher.Constraint("Tangent", 7, 2, 8, 1),
    Sketcher.Constraint("Tangent", 8, 2, 9, 2),
    Sketcher.Constraint("Tangent", 9, 1, 10, 1),
    Sketcher.Constraint("Tangent", 10, 2, 11, 2),
    Sketcher.Constraint("Tangent", 11, 1, 12, 1),
    Sketcher.Constraint("Tangent", 12, 2, 13, 1),
    Sketcher.Constraint("Tangent", 13, 2, 14, 1),
    Sketcher.Constraint("Tangent", 14, 2, 15, 2),
    Sketcher.Constraint("Tangent", 15, 1, 16, 1),
    Sketcher.Constraint("Tangent", 16, 2, 17, 2),
    Sketcher.Constraint("Tangent", 17, 1, 18, 1),
    Sketcher.Constraint("Tangent", 18, 2, 19, 1),
    Sketcher.Constraint("Tangent", 19, 2, 20, 1),
    Sketcher.Constraint("Tangent", 20, 2, 21, 2),
    Sketcher.Constraint("Tangent", 21, 1, 22, 1),
    Sketcher.Constraint("Tangent", 22, 2, 23, 2),
    Sketcher.Constraint("Tangent", 23, 1, 0, 1),
    Sketcher.Constraint("Tangent", 24, 2, 25, 2),
    Sketcher.Constraint("Tangent", 25, 1, 26, 1),
    Sketcher.Constraint("Tangent", 26, 2, 27, 1),
    Sketcher.Constraint("Tangent", 27, 2, 28, 1),
    Sketcher.Constraint("Tangent", 28, 2, 29, 1),
    Sketcher.Constraint("Tangent", 29, 2, 30, 1),
    Sketcher.Constraint("Tangent", 30, 2, 31, 2),
    Sketcher.Constraint("Tangent", 31, 1, 32, 1),
    Sketcher.Constraint("Tangent", 32, 2, 33, 1),
    Sketcher.Constraint("Tangent", 33, 2, 34, 1),
    Sketcher.Constraint("Tangent", 34, 2, 35, 1),
    Sketcher.Constraint("Tangent", 35, 2, 36, 1),
    Sketcher.Constraint("Tangent", 36, 2, 37, 2),
    Sketcher.Constraint("Tangent", 37, 1, 38, 1),
    Sketcher.Constraint("Tangent", 38, 2, 39, 1),
    Sketcher.Constraint("Tangent", 39, 2, 40, 1),
    Sketcher.Constraint("Tangent", 40, 2, 41, 1),
    Sketcher.Constraint("Tangent", 41, 2, 42, 1),
    Sketcher.Constraint("Tangent", 42, 2, 43, 2),
    Sketcher.Constraint("Tangent", 43, 1, 44, 1),
    Sketcher.Constraint("Tangent", 44, 2, 45, 1),
    Sketcher.Constraint("Tangent", 45, 2, 46, 1),
    Sketcher.Constraint("Tangent", 46, 2, 47, 1),
    Sketcher.Constraint("Tangent", 47, 2, 24, 1),
    Sketcher.Constraint("Horizontal", 0),
    Sketcher.Constraint("Vertical", 2),
    Sketcher.Constraint("Horizontal", 4),
    Sketcher.Constraint("Vertical", 6),
    Sketcher.Constraint("Horizontal", 8),
    Sketcher.Constraint("Vertical", 10),
    Sketcher.Constraint("Horizontal", 12),
    Sketcher.Constraint("Vertical", 14),
    Sketcher.Constraint("Horizontal", 16),
    Sketcher.Constraint("Vertical", 18),
    Sketcher.Constraint("Horizontal", 20),
    Sketcher.Constraint("Vertical", 22),
    Sketcher.Constraint("Vertical", 24),
    Sketcher.Constraint("Horizontal", 26),
    Sketcher.Constraint("Vertical", 28),
    Sketcher.Constraint("Horizontal", 30),
    Sketcher.Constraint("Vertical", 32),
    Sketcher.Constraint("Horizontal", 34),
    Sketcher.Constraint("Vertical", 36),
    Sketcher.Constraint("Horizontal", 38),
    Sketcher.Constraint("Vertical", 40),
    Sketcher.Constraint("Horizontal", 42),
    Sketcher.Constraint("Vertical", 44),
    Sketcher.Constraint("Horizontal", 46),
    Sketcher.Constraint("Coincident", 25, 3, 1, 3),
    Sketcher.Constraint("Coincident", 27, 3, 23, 3),
    Sketcher.Constraint("Coincident", 29, 3, 21, 3),
    Sketcher.Constraint("Coincident", 31, 3, 19, 3),
    Sketcher.Constraint("Coincident", 33, 3, 17, 3),
    Sketcher.Constraint("Coincident", 35, 3, 15, 3),
    Sketcher.Constraint("Coincident", 37, 3, 13, 3),
    Sketcher.Constraint("Coincident", 39, 3, 11, 3),
    Sketcher.Constraint("Coincident", 41, 3, 9, 3),
    Sketcher.Constraint("Coincident", 43, 3, 7, 3),
    Sketcher.Constraint("Coincident", 45, 3, 5, 3),
    Sketcher.Constraint("Equal", 3, 5),
    Sketcher.Constraint("Equal", 1, 7),
    Sketcher.Constraint("Equal", 5, 9),
    Sketcher.Constraint("Equal", 9, 11),
    Sketcher.Constraint("Equal", 7, 13),
    Sketcher.Constraint("Equal", 11, 15),
    Sketcher.Constraint("Equal", 15, 17),
    Sketcher.Constraint("Equal", 13, 19),
    Sketcher.Constraint("Equal", 17, 21),
    Sketcher.Constraint("Equal", 21, 23),
    Sketcher.Constraint("Equal", 45, 47),
    Sketcher.Constraint("Symmetric", 1, 3, 13, 3, -1, 1),
    Sketcher.Constraint("Symmetric", 5, 3, 17, 3, -1, 1),
    Sketcher.Constraint("Symmetric", 9, 3, 21, 3, -1, 1),
    Sketcher.Constraint("Symmetric", 1, 3, 7, 3, -2),
    Sketcher.Constraint("Radius", 1, 2.5),
    Sketcher.Constraint("Radius", 3, 5.5),
    Sketcher.Constraint("Radius", 25, 4.5),
    Sketcher.Constraint("DistanceY", 2, 1, 2, 2, 10.0),
    Sketcher.Constraint("DistanceX", 4, 1, 4, 2, 167.7),
    Sketcher.Constraint("DistanceY", 10, 2, 10, 1, 69.4),
    Sketcher.Constraint("DistanceX", 0, 1, 0, 2, 0.85),
])
pocket3 = body.newObject("PartDesign::Pocket", "Pocket002")
pocket3.Profile = sketch5
pocket3.Length = 2.5
pocket3.Reversed = True

# Sketch on XY plane
sketch6 = body.newObject("Sketcher::SketchObject", "Sketch005")
sketch6.AttachmentSupport = (doc.getObject("XY_Plane"), [""])
sketch6.MapMode = "FlatFace"
sketch6.addGeometry([
    Part.LineSegment(V(97.6, 49.3, 0), V(97.6, 39.8, 0)),  # 0
    Part.ArcOfCircle(Part.Circle(V(92.7, 34.7, 0), V(0, 0, 1), 7.1), math.radians(46), math.radians(90)),  # 1
    Part.LineSegment(V(92.7, 41.8, 0), V(91.8, 41.8, 0)),  # 2
    Part.ArcOfCircle(Part.Circle(V(91.8, 42.7, 0), V(0, 0, 1), 0.9), math.radians(180), math.radians(270)),  # 3
    Part.LineSegment(V(91, 42.7, 0), V(91, 49.1, 0)),  # 4
    Part.ArcOfCircle(Part.Circle(V(94.1, 54, 0), V(0, 0, 1), 5.9), math.radians(-123), math.radians(-54)),  # 5
    Part.LineSegment(V(97.6, -39.8, 0), V(97.6, -49.3, 0)),  # 6
    Part.ArcOfCircle(Part.Circle(V(94.1, -54, 0), V(0, 0, 1), 5.9), math.radians(54), math.radians(123)),  # 7
    Part.LineSegment(V(91, -49.1, 0), V(91, -42.7, 0)),  # 8
    Part.ArcOfCircle(Part.Circle(V(91.8, -42.7, 0), V(0, 0, 1), 0.9), math.radians(90), math.radians(180)),  # 9
    Part.LineSegment(V(91.8, -41.8, 0), V(92.7, -41.8, 0)),  # 10
    Part.ArcOfCircle(Part.Circle(V(92.7, -34.7, 0), V(0, 0, 1), 7.1), math.radians(-90), math.radians(-46)),  # 11
    Part.LineSegment(V(-91, -42.7, 0), V(-91, -49.1, 0)),  # 12
    Part.ArcOfCircle(Part.Circle(V(-94.1, -54, 0), V(0, 0, 1), 5.9), math.radians(57), math.radians(126)),  # 13
    Part.LineSegment(V(-97.6, -49.3, 0), V(-97.6, -39.8, 0)),  # 14
    Part.ArcOfCircle(Part.Circle(V(-92.7, -34.7, 0), V(0, 0, 1), 7.1), math.radians(-134), math.radians(-90)),  # 15
    Part.LineSegment(V(-92.7, -41.8, 0), V(-91.8, -41.8, 0)),  # 16
    Part.ArcOfCircle(Part.Circle(V(-91.8, -42.7, 0), V(0, 0, 1), 0.9), math.radians(0), math.radians(90)),  # 17
    Part.ArcOfCircle(Part.Circle(V(-92.7, 34.7, 0), V(0, 0, 1), 7.1), math.radians(90), math.radians(134)),  # 18
    Part.LineSegment(V(-97.6, 39.8, 0), V(-97.6, 49.3, 0)),  # 19
    Part.ArcOfCircle(Part.Circle(V(-94.1, 54, 0), V(0, 0, 1), 5.9), math.radians(-126), math.radians(-57)),  # 20
    Part.LineSegment(V(-91, 49.1, 0), V(-91, 42.7, 0)),  # 21
    Part.ArcOfCircle(Part.Circle(V(-91.8, 42.7, 0), V(0, 0, 1), 0.9), math.radians(-90), math.radians(0)),  # 22
    Part.LineSegment(V(-91.8, 41.8, 0), V(-92.7, 41.8, 0)),  # 23
], False)
sketch6.addConstraint([
    Sketcher.Constraint("Coincident", 0, 2, 1, 1),
    Sketcher.Constraint("Tangent", 1, 2, 2, 1),
    Sketcher.Constraint("Tangent", 2, 2, 3, 2),
    Sketcher.Constraint("Tangent", 3, 1, 4, 1),
    Sketcher.Constraint("Coincident", 4, 2, 5, 1),
    Sketcher.Constraint("Coincident", 5, 2, 0, 1),
    Sketcher.Constraint("Coincident", 6, 2, 7, 1),
    Sketcher.Constraint("Coincident", 7, 2, 8, 1),
    Sketcher.Constraint("Tangent", 8, 2, 9, 2),
    Sketcher.Constraint("Tangent", 9, 1, 10, 1),
    Sketcher.Constraint("Tangent", 10, 2, 11, 1),
    Sketcher.Constraint("Coincident", 11, 2, 6, 1),
    Sketcher.Constraint("Coincident", 12, 2, 13, 1),
    Sketcher.Constraint("Coincident", 13, 2, 14, 1),
    Sketcher.Constraint("Coincident", 14, 2, 15, 1),
    Sketcher.Constraint("Tangent", 15, 2, 16, 1),
    Sketcher.Constraint("Tangent", 16, 2, 17, 2),
    Sketcher.Constraint("Tangent", 17, 1, 12, 1),
    Sketcher.Constraint("Coincident", 18, 2, 19, 1),
    Sketcher.Constraint("Coincident", 19, 2, 20, 1),
    Sketcher.Constraint("Coincident", 20, 2, 21, 1),
    Sketcher.Constraint("Tangent", 21, 2, 22, 2),
    Sketcher.Constraint("Tangent", 22, 1, 23, 1),
    Sketcher.Constraint("Tangent", 23, 2, 18, 1),
    Sketcher.Constraint("Vertical", 0),
    Sketcher.Constraint("Horizontal", 2),
    Sketcher.Constraint("Vertical", 4),
    Sketcher.Constraint("Vertical", 6),
    Sketcher.Constraint("Vertical", 8),
    Sketcher.Constraint("Horizontal", 10),
    Sketcher.Constraint("Vertical", 12),
    Sketcher.Constraint("Vertical", 14),
    Sketcher.Constraint("Horizontal", 16),
    Sketcher.Constraint("Vertical", 19),
    Sketcher.Constraint("Vertical", 21),
    Sketcher.Constraint("Horizontal", 23),
    Sketcher.Constraint("Equal", 5, 7),
    Sketcher.Constraint("Equal", 3, 9),
    Sketcher.Constraint("Equal", 1, 11),
    Sketcher.Constraint("Equal", 7, 13),
    Sketcher.Constraint("Equal", 11, 15),
    Sketcher.Constraint("Equal", 9, 17),
    Sketcher.Constraint("Equal", 15, 18),
    Sketcher.Constraint("Equal", 13, 20),
    Sketcher.Constraint("Equal", 17, 22),
    Sketcher.Constraint("Symmetric", 5, 3, 13, 3, -1, 1),
    Sketcher.Constraint("Symmetric", 1, 3, 15, 3, -1, 1),
    Sketcher.Constraint("Symmetric", 11, 3, 18, 3, -1, 1),
    Sketcher.Constraint("Symmetric", 7, 3, 20, 3, -1, 1),
    Sketcher.Constraint("Symmetric", 7, 3, 13, 3, -2),
    Sketcher.Constraint("Symmetric", 11, 3, 15, 3, -2),
    Sketcher.Constraint("Horizontal", 7, 2, 12, 2),
    Sketcher.Constraint("Horizontal", 6, 2, 13, 2),
    Sketcher.Constraint("Horizontal", 0, 2, 18, 2),
    Sketcher.Constraint("Horizontal", 4, 2, 20, 2),
    Sketcher.Constraint("Vertical", 3, 3, 9, 3),
    Sketcher.Constraint("Vertical", 5, 2, 6, 2),
    Sketcher.Constraint("Radius", 1, 7.1),
    Sketcher.Constraint("Radius", 3, 0.9),
    Sketcher.Constraint("Radius", 5, 5.85),
    Sketcher.Constraint("DistanceY", -1, 1, 5, 3, 54.0),
    Sketcher.Constraint("DistanceX", 13, 3, 9, 3, 186.0),
    Sketcher.Constraint("DistanceX", 2, 2, 2, 1, 0.85),
    Sketcher.Constraint("DistanceX", -1, 1, 1, 3, 92.7),
    Sketcher.Constraint("DistanceY", -1, 1, 1, 3, 34.7),
    Sketcher.Constraint("DistanceX", -1, 1, 0, 2, 97.6),
])
pocket4 = body.newObject("PartDesign::Pocket", "Pocket003")
pocket4.Profile = sketch6
pocket4.Length = 11.2
pocket4.Reversed = True

doc.recompute()
